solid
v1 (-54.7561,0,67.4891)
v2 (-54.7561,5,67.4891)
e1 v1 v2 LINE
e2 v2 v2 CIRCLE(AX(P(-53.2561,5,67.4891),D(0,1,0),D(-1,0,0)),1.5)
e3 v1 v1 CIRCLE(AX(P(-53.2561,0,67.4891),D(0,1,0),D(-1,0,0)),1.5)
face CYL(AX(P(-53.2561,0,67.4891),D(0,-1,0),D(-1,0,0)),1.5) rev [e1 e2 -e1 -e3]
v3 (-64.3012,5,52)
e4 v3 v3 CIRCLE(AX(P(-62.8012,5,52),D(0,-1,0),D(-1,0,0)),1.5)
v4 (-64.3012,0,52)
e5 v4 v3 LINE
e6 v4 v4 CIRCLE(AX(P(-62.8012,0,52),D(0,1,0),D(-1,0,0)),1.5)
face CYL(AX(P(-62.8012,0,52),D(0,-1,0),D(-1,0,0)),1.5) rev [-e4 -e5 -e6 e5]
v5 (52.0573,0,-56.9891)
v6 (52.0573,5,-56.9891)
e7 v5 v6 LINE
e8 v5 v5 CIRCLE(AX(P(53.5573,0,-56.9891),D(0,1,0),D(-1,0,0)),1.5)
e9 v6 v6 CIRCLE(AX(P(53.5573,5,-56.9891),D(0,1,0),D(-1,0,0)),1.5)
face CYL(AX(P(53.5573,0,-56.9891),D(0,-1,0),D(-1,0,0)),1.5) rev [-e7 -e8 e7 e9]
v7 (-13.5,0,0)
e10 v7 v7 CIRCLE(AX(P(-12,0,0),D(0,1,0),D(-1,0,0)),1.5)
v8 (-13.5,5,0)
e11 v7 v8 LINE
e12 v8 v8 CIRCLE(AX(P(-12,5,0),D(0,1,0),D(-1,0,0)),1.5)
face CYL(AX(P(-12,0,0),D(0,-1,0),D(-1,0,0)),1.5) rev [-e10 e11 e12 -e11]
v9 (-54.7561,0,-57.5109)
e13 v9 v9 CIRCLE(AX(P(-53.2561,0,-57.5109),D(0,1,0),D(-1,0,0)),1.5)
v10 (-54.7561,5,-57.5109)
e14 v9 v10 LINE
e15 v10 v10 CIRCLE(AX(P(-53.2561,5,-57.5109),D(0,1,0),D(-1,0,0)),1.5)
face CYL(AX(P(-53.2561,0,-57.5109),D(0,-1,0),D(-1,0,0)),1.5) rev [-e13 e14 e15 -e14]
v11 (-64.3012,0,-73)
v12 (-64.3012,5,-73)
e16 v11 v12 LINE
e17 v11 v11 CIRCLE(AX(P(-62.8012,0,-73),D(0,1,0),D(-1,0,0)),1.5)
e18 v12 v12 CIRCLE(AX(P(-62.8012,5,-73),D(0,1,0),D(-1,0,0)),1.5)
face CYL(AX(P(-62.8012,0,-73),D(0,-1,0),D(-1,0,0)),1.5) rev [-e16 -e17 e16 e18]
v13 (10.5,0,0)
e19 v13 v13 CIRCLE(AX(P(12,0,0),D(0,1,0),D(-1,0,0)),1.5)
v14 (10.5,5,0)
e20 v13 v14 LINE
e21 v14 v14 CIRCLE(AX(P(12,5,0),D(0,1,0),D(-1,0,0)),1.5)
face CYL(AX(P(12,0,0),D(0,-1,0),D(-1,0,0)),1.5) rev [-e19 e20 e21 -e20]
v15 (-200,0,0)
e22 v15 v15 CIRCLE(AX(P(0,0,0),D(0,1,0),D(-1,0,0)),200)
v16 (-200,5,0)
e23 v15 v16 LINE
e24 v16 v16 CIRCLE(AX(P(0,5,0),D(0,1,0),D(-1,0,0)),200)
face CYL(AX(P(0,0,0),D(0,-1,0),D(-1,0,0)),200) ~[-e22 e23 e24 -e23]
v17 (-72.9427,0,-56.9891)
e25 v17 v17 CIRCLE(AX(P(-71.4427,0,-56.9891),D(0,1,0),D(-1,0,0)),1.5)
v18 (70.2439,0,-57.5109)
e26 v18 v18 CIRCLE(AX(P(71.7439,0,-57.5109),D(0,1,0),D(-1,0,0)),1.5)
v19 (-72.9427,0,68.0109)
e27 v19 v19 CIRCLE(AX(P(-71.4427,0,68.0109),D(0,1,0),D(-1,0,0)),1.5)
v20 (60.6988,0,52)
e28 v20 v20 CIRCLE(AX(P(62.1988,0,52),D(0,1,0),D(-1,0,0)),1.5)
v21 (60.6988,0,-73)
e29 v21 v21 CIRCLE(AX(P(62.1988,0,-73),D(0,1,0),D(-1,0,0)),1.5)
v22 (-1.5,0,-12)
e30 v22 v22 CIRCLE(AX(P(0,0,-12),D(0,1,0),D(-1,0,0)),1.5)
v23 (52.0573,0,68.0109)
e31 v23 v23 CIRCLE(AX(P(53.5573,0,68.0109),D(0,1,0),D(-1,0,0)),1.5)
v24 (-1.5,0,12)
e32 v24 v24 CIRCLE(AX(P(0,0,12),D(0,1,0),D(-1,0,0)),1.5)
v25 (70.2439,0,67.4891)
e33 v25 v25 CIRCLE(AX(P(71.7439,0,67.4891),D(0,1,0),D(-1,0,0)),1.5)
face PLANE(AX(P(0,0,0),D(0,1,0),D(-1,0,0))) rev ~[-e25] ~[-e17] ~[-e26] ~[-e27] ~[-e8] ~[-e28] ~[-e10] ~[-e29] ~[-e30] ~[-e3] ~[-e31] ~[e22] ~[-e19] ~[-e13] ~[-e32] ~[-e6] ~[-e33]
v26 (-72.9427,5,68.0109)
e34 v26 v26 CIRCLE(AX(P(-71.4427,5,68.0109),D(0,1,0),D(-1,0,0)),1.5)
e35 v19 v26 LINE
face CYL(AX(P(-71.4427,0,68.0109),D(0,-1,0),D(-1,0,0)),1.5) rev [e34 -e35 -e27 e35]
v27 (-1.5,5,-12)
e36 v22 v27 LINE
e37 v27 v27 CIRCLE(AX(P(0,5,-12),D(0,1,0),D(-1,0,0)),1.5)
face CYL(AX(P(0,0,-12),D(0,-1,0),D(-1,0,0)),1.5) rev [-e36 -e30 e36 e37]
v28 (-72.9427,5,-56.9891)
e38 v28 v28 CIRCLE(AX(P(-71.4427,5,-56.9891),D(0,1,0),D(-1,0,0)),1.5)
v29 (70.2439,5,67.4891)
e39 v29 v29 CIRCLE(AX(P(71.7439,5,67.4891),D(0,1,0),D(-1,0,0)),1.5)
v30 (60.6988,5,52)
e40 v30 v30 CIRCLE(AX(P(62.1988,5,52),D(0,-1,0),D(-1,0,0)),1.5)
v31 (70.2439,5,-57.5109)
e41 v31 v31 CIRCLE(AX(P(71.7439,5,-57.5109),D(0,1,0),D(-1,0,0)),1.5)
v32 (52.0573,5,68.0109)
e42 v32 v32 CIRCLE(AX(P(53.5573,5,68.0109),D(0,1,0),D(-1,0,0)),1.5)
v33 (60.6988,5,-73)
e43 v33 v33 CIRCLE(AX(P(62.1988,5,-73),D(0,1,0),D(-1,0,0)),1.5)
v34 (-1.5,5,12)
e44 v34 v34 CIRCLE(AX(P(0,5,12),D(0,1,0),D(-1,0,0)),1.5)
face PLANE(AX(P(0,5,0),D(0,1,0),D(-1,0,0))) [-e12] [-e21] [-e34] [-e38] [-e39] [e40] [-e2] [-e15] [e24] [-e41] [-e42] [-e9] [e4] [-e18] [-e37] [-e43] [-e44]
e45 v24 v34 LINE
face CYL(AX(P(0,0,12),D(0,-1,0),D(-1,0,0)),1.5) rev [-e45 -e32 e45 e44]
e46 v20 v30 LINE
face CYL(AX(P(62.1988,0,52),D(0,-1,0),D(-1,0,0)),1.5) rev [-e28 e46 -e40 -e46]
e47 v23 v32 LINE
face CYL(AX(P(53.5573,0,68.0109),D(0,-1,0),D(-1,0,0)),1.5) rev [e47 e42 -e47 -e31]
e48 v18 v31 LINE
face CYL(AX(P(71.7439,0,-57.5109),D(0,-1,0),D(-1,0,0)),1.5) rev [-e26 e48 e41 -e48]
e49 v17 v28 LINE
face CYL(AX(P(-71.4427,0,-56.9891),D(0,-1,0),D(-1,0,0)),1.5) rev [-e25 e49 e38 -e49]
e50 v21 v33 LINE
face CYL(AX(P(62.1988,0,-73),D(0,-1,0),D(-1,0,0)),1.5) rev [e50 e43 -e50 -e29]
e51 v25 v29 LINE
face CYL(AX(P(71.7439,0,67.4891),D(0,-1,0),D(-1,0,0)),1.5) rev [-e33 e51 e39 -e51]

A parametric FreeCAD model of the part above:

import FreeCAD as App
import Part
import Sketcher
Q = App.Units.Quantity

doc = App.newDocument("Part")
body = doc.addObject("PartDesign::Body", "Body")

sketch1 = body.newObject("Sketcher::SketchObject", "Sketch")
sketch1.AttachmentSupport = (doc.getObject("XZ_Plane"), [""])
sketch1.MapMode = "FlatFace"
sketch1.addGeometry([
    Part.Circle(App.Vector(0, 0, 0), App.Vector(0, 0, 1), 200),
    Part.Circle(App.Vector(62.2, -73, 0), App.Vector(0, 0, 1), 1.5),
    Part.Circle(App.Vector(71.7, -57.5, 0), App.Vector(0, 0, 1), 1.5),
    Part.Circle(App.Vector(-62.8, -73, 0), App.Vector(0, 0, 1), 1.5),
    Part.Circle(App.Vector(-71.4, -57, 0), App.Vector(0, 0, 1), 1.5),
    Part.Circle(App.Vector(71.7, 67.5, 0), App.Vector(0, 0, 1), 1.5),
    Part.Circle(App.Vector(53.6, 68, 0), App.Vector(0, 0, 1), 1.5),
    Part.Circle(App.Vector(62.2, 52, 0), App.Vector(0, 0, 1), 1.5),
    Part.Circle(App.Vector(-62.8, 52, 0), App.Vector(0, 0, 1), 1.5),
    Part.Circle(App.Vector(-53.3, 67.5, 0), App.Vector(0, 0, 1), 1.5),
    Part.Circle(App.Vector(-71.4, 68, 0), App.Vector(0, 0, 1), 1.5),
    Part.Circle(App.Vector(53.6, -57, 0), App.Vector(0, 0, 1), 1.5),
    Part.Circle(App.Vector(-53.3, -57.5, 0), App.Vector(0, 0, 1), 1.5),
    Part.Circle(App.Vector(0, -12, 0), App.Vector(0, 0, 1), 1.5),
    Part.Circle(App.Vector(12, 0, 0), App.Vector(0, 0, 1), 1.5),
    Part.Circle(App.Vector(-12, 0, 0), App.Vector(0, 0, 1), 1.5),
    Part.Circle(App.Vector(0, 12, 0), App.Vector(0, 0, 1), 1.5),
], False)
sketch1.addConstraint([
    Sketcher.Constraint("Coincident", 0, 3, -1, 1),
    Sketcher.Constraint("Equal", 1, 2),
    Sketcher.Constraint("Equal", 2, 3),
    Sketcher.Constraint("Equal", 3, 4),
    Sketcher.Constraint("Equal", 4, 5),
    Sketcher.Constraint("Equal", 5, 6),
    Sketcher.Constraint("Equal", 6, 7),
    Sketcher.Constraint("Equal", 7, 8),
    Sketcher.Constraint("Equal", 8, 9),
    Sketcher.Constraint("Equal", 9, 10),
    Sketcher.Constraint("Equal", 10, 11),
    Sketcher.Constraint("Equal", 11, 12),
    Sketcher.Constraint("Equal", 12, 13),
    Sketcher.Constraint("Equal", 13, 14),
    Sketcher.Constraint("Equal", 14, 15),
    Sketcher.Constraint("Equal", 15, 16),
    Sketcher.Constraint("Symmetric", 14, 3, 15, 3, -1, 1),
    Sketcher.Constraint("Symmetric", 13, 3, 16, 3, -1, 1),
    Sketcher.Constraint("PointOnObject", 13, 3, -2),
    Sketcher.Constraint("PointOnObject", 14, 3, -1),
    Sketcher.Constraint("Horizontal", 1, 3, 3, 3),
    Sketcher.Constraint("Horizontal", 7, 3, 8, 3),
    Sketcher.Constraint("Horizontal", 5, 3, 9, 3),
    Sketcher.Constraint("Horizontal", 6, 3, 10, 3),
    Sketcher.Constraint("Horizontal", 4, 3, 11, 3),
    Sketcher.Constraint("Horizontal", 2, 3, 12, 3),
    Sketcher.Constraint("Vertical", 2, 3, 5, 3),
    Sketcher.Constraint("Vertical", 1, 3, 7, 3),
    Sketcher.Constraint("Vertical", 3, 3, 8, 3),
    Sketcher.Constraint("Vertical", 4, 3, 10, 3),
    Sketcher.Constraint("Vertical", 6, 3, 11, 3),
    Sketcher.Constraint("Vertical", 9, 3, 12, 3),
    Sketcher.Constraint("Diameter", 0, Q("400 mm")),
    Sketcher.Constraint("Diameter", 1, Q("3 mm")),
    Sketcher.Constraint("DistanceY", 13, 3, -1, 1, Q("12 mm")),
    Sketcher.Constraint("DistanceX", -1, 1, 14, 3, Q("12 mm")),
    Sketcher.Constraint("DistanceX", 3, 3, 1, 3, Q("125 mm")),
    Sketcher.Constraint("DistanceY", 2, 3, 5, 3, Q("125 mm")),
    Sketcher.Constraint("DistanceX", 4, 3, 6, 3, Q("125 mm")),
    Sketcher.Constraint("DistanceY", 4, 3, 6, 3, Q("125 mm")),
    Sketcher.Constraint("DistanceY", 1, 3, 7, 3, Q("125 mm")),
    Sketcher.Constraint("DistanceX", 9, 3, 5, 3, Q("125 mm")),
    Sketcher.Constraint("DistanceY", 1, 3, -1, 1, Q("73 mm")),
    Sketcher.Constraint("DistanceX", -1, 1, 2, 3, Q("71.744 mm")),
    Sketcher.Constraint("DistanceY", 2, 3, -1, 1, Q("57.511 mm")),
    Sketcher.Constraint("DistanceY", 4, 3, -1, 1, Q("56.989 mm")),
    Sketcher.Constraint("DistanceX", 1, 3, 2, 3, Q("9.545 mm")),
    Sketcher.Constraint("DistanceX", 4, 3, -1, 1, Q("71.4427 mm")),
])
pad1 = body.newObject("PartDesign::Pad", "Pad")
pad1.Profile = sketch1
pad1.Length = 5
pad1.Reversed = True

doc.recompute()
